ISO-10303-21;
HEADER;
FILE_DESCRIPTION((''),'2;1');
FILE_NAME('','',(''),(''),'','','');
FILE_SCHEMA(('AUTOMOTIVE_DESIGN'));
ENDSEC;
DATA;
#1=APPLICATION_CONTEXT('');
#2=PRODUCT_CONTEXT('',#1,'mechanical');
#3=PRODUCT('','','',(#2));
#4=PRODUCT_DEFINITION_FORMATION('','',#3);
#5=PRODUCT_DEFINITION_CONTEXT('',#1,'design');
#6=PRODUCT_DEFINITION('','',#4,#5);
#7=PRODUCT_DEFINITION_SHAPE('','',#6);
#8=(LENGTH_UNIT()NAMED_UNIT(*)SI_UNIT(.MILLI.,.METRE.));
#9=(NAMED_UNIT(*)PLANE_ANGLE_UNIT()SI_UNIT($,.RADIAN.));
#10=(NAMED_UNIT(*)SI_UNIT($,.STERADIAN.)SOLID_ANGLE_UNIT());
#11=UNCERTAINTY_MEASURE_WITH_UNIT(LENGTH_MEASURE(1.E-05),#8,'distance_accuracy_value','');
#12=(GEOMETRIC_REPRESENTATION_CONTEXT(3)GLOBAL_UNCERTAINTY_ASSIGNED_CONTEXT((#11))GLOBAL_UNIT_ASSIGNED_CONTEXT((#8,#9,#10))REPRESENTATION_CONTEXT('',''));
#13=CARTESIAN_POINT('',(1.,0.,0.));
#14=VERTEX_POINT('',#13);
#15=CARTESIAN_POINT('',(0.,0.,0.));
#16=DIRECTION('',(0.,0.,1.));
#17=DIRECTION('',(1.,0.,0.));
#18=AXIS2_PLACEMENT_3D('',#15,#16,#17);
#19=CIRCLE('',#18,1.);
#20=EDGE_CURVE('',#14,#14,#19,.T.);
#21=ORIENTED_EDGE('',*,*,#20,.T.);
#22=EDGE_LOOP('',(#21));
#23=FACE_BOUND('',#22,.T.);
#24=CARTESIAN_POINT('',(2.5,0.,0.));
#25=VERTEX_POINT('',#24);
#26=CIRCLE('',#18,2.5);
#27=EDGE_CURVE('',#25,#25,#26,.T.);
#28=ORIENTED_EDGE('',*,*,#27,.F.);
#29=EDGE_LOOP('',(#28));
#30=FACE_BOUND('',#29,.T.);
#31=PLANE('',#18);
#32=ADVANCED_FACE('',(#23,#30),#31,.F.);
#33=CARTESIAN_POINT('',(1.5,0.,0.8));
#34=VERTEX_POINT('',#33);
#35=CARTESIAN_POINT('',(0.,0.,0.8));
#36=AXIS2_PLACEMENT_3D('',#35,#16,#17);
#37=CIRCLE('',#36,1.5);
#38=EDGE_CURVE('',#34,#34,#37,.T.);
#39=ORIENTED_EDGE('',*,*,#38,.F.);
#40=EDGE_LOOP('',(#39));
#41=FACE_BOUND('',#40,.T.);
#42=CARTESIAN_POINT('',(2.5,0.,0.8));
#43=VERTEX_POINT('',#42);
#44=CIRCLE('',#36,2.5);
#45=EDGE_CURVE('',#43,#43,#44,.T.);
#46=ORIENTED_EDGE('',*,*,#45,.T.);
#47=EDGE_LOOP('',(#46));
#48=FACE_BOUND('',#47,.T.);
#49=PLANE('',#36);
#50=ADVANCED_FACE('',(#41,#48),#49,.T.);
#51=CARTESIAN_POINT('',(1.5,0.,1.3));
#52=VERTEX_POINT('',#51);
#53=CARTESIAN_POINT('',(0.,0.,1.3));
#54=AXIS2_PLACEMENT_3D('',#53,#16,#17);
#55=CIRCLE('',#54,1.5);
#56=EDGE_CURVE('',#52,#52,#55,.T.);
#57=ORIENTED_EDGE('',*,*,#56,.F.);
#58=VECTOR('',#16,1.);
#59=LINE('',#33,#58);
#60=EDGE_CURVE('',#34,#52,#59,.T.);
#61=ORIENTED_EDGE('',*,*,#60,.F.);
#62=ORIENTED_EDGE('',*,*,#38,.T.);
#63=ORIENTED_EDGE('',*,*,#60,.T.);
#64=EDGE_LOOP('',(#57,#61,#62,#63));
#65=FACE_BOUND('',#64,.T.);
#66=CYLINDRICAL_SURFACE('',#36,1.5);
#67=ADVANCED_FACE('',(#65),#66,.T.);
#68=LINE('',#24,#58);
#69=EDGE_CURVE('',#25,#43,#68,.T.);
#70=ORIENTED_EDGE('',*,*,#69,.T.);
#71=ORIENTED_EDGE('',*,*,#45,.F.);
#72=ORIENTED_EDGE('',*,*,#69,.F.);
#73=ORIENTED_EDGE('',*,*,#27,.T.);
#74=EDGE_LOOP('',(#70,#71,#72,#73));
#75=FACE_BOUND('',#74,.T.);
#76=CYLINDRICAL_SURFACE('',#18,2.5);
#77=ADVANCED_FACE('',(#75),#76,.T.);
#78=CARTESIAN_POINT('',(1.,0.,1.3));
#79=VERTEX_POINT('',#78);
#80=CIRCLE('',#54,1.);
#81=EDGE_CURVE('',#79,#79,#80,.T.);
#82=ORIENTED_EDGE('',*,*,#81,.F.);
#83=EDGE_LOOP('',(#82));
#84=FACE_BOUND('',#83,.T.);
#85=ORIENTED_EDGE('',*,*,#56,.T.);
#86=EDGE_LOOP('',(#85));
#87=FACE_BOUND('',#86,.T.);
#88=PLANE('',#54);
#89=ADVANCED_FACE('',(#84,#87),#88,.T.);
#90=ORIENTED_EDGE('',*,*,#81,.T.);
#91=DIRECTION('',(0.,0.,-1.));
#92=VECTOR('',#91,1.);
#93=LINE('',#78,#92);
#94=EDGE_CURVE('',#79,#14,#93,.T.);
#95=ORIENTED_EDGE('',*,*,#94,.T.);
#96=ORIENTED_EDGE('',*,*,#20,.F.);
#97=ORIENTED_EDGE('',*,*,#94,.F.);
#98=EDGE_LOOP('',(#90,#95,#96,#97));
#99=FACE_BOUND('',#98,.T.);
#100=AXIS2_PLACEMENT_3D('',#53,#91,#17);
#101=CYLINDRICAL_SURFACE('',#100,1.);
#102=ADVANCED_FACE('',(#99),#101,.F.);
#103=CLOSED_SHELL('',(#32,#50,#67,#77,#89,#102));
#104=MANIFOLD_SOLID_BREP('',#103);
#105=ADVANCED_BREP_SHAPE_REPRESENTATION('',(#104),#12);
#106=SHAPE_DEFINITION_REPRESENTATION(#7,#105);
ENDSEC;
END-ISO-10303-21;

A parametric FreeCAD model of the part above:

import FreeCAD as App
import Part
import Sketcher
from FreeCAD import Vector

doc = App.newDocument("Part")
body = doc.addObject("PartDesign::Body", "Body")

sketch1 = body.newObject("Sketcher::SketchObject", "Sketch")
sketch1.AttachmentSupport = (doc.getObject("XZ_Plane"), [""])
sketch1.MapMode = "FlatFace"
sketch1.addGeometry([
    Part.LineSegment(Vector(1, 0, 0), Vector(1, 1.3, 0)),
    Part.LineSegment(Vector(1, 1.3, 0), Vector(1.5, 1.3, 0)),
    Part.LineSegment(Vector(1.5, 1.3, 0), Vector(1.5, 0.8, 0)),
    Part.LineSegment(Vector(1.5, 0.8, 0), Vector(2.5, 0.8, 0)),
    Part.LineSegment(Vector(2.5, 0.8, 0), Vector(2.5, 0, 0)),
    Part.LineSegment(Vector(2.5, 0, 0), Vector(1, 0, 0)),
], False)
sketch1.addConstraint([
    Sketcher.Constraint("Coincident", 0, 2, 1, 1),
    Sketcher.Constraint("Coincident", 1, 2, 2, 1),
    Sketcher.Constraint("Coincident", 2, 2, 3, 1),
    Sketcher.Constraint("Coincident", 3, 2, 4, 1),
    Sketcher.Constraint("Coincident", 4, 2, 5, 1),
    Sketcher.Constraint("Coincident", 5, 2, 0, 1),
    Sketcher.Constraint("Vertical", 0),
    Sketcher.Constraint("Horizontal", 1),
    Sketcher.Constraint("Vertical", 2),
    Sketcher.Constraint("Horizontal", 3),
    Sketcher.Constraint("Vertical", 4),
    Sketcher.Constraint("Horizontal", 5),
    Sketcher.Constraint("PointOnObject", 4, 2, -1),
    Sketcher.Constraint("Equal", 1, 2),
    Sketcher.Constraint("DistanceX", 1, 1, 1, 2, 0.5),
    Sketcher.Constraint("DistanceY", 4, 2, 4, 1, 0.8),
    Sketcher.Constraint("DistanceX", 3, 1, 3, 2, 1.0),
    Sketcher.Constraint("DistanceX", -1, 1, 0, 2, 1.0),
])
revolution = body.newObject("PartDesign::Revolution", "Revolution")
revolution.Profile = sketch1
revolution.ReferenceAxis = (sketch1, ["V_Axis"])
revolution.Angle = 360

doc.recompute()
